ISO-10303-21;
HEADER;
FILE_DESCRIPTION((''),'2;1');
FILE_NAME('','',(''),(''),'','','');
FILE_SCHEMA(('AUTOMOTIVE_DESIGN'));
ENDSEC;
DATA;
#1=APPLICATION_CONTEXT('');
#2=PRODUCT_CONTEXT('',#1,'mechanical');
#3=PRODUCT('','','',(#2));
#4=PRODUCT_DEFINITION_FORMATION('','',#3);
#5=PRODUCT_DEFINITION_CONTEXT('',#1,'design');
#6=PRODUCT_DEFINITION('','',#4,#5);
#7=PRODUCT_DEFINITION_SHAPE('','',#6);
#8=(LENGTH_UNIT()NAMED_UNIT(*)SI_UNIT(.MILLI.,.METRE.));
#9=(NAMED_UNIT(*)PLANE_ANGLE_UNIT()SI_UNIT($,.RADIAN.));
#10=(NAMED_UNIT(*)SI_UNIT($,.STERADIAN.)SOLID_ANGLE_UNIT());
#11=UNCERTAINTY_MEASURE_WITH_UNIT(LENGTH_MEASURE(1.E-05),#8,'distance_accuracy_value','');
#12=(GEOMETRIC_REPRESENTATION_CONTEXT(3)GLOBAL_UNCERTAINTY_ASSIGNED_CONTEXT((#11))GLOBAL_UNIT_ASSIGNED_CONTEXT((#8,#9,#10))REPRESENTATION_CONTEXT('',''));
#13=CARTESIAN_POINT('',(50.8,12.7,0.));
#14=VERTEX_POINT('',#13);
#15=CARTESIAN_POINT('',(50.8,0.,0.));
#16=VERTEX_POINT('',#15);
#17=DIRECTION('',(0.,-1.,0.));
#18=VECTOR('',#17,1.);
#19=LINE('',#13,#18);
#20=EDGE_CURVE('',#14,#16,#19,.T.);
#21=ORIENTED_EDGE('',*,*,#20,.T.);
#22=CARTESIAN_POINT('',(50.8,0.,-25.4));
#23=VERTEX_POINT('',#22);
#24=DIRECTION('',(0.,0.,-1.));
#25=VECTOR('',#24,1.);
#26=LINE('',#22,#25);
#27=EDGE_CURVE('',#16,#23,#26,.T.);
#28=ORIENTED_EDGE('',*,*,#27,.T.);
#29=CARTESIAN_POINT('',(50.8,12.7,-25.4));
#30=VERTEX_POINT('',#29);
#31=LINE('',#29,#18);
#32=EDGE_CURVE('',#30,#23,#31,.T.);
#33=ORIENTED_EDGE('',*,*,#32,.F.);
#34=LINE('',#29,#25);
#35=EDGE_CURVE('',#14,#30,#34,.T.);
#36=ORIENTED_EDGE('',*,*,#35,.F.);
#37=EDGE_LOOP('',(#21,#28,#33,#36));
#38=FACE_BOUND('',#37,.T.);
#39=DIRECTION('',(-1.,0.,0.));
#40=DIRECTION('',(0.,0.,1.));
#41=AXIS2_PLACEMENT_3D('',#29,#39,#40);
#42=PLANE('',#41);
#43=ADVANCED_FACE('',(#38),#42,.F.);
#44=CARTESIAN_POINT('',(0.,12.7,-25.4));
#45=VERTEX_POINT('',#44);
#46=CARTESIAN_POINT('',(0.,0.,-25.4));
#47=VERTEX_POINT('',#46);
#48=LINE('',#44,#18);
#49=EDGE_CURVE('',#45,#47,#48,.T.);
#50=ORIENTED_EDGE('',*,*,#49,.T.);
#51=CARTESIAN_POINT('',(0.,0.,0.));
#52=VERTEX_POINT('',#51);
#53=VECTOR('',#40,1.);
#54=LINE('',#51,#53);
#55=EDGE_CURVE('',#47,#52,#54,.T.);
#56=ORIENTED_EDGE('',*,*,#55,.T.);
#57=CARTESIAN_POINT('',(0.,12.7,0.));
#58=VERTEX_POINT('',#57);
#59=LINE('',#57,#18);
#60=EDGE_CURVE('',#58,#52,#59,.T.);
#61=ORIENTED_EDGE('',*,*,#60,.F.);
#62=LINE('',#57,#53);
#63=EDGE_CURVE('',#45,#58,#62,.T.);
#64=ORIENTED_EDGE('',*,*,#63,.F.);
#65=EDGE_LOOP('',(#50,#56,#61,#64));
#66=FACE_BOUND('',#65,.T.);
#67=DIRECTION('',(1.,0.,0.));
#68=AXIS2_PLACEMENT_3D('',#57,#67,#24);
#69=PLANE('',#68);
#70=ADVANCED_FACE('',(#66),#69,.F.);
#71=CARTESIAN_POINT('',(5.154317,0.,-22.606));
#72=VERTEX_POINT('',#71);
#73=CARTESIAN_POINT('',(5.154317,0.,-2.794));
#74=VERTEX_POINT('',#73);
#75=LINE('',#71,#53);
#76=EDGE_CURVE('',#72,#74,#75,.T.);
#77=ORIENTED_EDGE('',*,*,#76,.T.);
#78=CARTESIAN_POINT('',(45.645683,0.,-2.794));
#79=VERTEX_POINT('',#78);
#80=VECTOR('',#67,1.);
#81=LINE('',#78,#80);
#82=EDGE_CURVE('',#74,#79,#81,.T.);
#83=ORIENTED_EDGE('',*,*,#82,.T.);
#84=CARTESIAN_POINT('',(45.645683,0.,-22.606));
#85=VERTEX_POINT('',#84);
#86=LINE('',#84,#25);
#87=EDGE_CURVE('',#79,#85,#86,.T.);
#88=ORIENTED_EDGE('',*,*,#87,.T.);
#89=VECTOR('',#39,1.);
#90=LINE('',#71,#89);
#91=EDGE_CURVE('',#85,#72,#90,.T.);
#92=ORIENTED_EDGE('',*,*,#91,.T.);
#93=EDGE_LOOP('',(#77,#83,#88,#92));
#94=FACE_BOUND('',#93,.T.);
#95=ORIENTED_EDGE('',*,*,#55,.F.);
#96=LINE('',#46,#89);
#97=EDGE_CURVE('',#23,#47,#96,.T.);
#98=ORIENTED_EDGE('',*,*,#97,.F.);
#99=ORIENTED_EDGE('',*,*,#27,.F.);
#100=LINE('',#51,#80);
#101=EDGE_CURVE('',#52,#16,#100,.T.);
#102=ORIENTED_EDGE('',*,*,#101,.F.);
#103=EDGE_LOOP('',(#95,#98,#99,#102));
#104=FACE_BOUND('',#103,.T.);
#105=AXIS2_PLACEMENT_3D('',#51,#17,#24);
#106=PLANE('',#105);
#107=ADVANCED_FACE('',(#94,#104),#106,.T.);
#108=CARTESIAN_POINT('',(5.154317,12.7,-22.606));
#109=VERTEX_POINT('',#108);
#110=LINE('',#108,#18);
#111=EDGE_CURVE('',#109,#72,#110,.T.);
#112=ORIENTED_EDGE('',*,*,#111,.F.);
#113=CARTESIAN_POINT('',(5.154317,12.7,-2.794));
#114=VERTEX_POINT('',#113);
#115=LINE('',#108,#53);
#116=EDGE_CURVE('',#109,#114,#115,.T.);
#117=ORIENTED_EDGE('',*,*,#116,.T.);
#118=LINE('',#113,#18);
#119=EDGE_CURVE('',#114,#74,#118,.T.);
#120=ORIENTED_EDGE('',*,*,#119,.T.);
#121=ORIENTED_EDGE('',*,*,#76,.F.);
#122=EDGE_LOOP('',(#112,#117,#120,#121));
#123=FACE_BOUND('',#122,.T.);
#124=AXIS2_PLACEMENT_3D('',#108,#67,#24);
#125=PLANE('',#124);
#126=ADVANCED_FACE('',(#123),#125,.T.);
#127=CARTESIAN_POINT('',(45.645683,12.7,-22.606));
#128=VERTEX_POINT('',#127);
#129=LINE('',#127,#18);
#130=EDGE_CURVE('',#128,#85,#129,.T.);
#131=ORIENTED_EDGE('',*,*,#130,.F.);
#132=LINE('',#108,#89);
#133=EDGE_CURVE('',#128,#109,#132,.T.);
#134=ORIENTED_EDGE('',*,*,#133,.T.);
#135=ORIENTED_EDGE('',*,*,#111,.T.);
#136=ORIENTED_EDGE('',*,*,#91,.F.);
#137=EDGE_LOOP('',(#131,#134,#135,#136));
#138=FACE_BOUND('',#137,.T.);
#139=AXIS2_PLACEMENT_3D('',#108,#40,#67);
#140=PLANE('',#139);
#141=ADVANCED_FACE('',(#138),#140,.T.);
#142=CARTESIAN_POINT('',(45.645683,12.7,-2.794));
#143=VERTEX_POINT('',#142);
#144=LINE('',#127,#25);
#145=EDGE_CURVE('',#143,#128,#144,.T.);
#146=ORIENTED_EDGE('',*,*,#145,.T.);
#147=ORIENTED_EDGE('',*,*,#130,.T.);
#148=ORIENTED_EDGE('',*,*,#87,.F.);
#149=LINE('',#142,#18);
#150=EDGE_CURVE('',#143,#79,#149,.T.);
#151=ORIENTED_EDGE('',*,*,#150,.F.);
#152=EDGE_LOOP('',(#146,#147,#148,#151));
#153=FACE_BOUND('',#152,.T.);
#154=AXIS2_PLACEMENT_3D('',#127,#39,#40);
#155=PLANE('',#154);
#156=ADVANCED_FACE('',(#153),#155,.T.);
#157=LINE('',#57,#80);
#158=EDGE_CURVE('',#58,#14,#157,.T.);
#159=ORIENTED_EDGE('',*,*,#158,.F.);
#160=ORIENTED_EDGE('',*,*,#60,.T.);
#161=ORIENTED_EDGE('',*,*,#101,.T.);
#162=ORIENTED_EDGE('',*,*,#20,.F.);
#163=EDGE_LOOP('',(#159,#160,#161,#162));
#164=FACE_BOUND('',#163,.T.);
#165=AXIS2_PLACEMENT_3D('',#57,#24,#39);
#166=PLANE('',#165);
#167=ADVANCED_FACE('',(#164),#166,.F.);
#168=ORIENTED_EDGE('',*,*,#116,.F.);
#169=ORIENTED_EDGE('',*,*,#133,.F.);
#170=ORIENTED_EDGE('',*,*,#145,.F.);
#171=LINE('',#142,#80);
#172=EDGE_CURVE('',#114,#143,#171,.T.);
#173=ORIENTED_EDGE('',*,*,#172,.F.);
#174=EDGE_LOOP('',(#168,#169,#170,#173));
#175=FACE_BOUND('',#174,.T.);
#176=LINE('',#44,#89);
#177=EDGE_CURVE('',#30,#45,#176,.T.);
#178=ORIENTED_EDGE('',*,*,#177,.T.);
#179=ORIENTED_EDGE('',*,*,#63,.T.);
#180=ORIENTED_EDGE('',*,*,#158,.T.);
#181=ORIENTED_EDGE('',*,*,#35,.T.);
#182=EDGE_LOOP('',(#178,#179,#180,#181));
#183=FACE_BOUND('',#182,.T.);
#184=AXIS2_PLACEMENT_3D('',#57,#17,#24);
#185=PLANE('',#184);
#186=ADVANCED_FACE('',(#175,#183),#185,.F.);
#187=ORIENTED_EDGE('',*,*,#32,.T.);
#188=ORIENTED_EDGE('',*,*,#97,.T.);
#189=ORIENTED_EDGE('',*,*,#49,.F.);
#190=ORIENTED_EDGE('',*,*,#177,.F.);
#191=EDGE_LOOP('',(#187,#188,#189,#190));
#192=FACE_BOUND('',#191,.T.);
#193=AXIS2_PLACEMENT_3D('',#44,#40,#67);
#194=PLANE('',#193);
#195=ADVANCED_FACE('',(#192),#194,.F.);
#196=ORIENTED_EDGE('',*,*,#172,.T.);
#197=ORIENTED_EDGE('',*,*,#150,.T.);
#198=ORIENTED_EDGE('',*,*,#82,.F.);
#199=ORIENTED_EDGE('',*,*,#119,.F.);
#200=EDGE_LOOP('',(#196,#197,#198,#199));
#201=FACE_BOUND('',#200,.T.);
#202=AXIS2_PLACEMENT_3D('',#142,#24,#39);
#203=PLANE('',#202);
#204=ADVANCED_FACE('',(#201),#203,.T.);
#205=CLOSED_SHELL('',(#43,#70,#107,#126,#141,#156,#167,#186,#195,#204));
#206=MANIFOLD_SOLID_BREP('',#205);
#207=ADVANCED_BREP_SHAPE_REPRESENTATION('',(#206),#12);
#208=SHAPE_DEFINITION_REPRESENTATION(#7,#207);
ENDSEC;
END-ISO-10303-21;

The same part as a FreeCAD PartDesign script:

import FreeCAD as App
import Part
import Sketcher

V = App.Vector
Q = App.Units.Quantity


def add_polygon(sketch, points):
    """Adds a closed chain of lines whose ends are joined by coincident constraints."""
    first, n = sketch.GeometryCount, len(points)
    for a, b in zip(points, points[1:] + points[:1]):
        sketch.addGeometry(Part.LineSegment(App.Vector(*a, 0), App.Vector(*b, 0)), False)
    for i in range(n):
        sketch.addConstraint(Sketcher.Constraint("Coincident", first + i, 2, first + (i + 1) % n, 1))

doc = App.newDocument("Part")
body = doc.addObject("PartDesign::Body", "Body")

# Sketch on XZ plane
sketch1 = body.newObject("Sketcher::SketchObject", "Sketch")
sketch1.AttachmentSupport = (doc.getObject("XZ_Plane"), [""])
sketch1.MapMode = "FlatFace"
add_polygon(sketch1, [(0, -25), (0, 0), (51, 0), (51, -25)])  # lines 0-3
add_polygon(sketch1, [(46, -3), (5, -3), (5, -23), (46, -23)])  # lines 4-7
sketch1.addConstraint([
    Sketcher.Constraint("Vertical", 0),
    Sketcher.Constraint("Horizontal", 1),
    Sketcher.Constraint("Vertical", 2),
    Sketcher.Constraint("Horizontal", 3),
    Sketcher.Constraint("Horizontal", 4),
    Sketcher.Constraint("Vertical", 5),
    Sketcher.Constraint("Horizontal", 6),
    Sketcher.Constraint("Vertical", 7),
    Sketcher.Constraint("Coincident", 0, 2, -1, 1),
    Sketcher.Constraint("DistanceX", 1, 1, 1, 2, Q("2 in")),
    Sketcher.Constraint("DistanceY", 0, 1, 0, 2, Q("1 in")),
    Sketcher.Constraint("DistanceY", 5, 2, 5, 1, Q("0.78 in")),
    Sketcher.Constraint("DistanceY", 4, 2, -1, 1, Q("0.11 in")),
    Sketcher.Constraint("DistanceX", 4, 2, 4, 1, 40.491366),
    Sketcher.Constraint("DistanceX", -1, 1, 4, 2, 5.154317),
])
pad1 = body.newObject("PartDesign::Pad", "Pad")
pad1.Profile = sketch1
pad1.Length = Q("0.5 in")
pad1.Reversed = True

doc.recompute()
